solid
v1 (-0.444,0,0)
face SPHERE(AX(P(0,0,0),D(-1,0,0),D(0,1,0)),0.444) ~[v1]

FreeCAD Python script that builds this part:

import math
import FreeCAD as App
import Part
import Sketcher
from FreeCAD import Vector

doc = App.newDocument("Part")
params = doc.addObject("Spreadsheet::Sheet", "Params")
for row, (alias, value) in enumerate([
    ("revolution_angle", "360 deg"),
], start=1):
    params.set(f"A{row}", alias)
    params.set(f"B{row}", "=" + value)
    params.setAlias(f"B{row}", alias)

body = doc.addObject("PartDesign::Body", "Body")

sketch1 = doc.addObject("Sketcher::SketchObject", "Sketch")
body.addObject(sketch1)
sketch1.AttachmentSupport = (doc.XY_Plane, [""])
sketch1.MapMode = "FlatFace"
sketch1.addGeometry([
    Part.LineSegment(Vector(-0.44, 0, 0), Vector(0.44, 0, 0)),
    Part.ArcOfCircle(Part.Circle(Vector(0, 0, 0), Vector(0, 0, 1), 0.44), math.radians(0), math.radians(180)),
], False)
sketch1.addConstraint([
    Sketcher.Constraint("Coincident", 0, 1, 1, 2),
    Sketcher.Constraint("Coincident", 1, 1, 0, 2),
    Sketcher.Constraint("Horizontal", 0),
    Sketcher.Constraint("Coincident", 1, 3, -1, 1),
    Sketcher.Constraint("PointOnObject", 0, 1, -1),
    Sketcher.Constraint("Radius", 1, 0.444),
])
revolution = doc.addObject("PartDesign::Revolution", "Revolution")
body.addObject(revolution)
revolution.Profile = sketch1
revolution.ReferenceAxis = (sketch1, ["H_Axis"])
revolution.setExpression("Angle", "Params.revolution_angle")

doc.recompute()
